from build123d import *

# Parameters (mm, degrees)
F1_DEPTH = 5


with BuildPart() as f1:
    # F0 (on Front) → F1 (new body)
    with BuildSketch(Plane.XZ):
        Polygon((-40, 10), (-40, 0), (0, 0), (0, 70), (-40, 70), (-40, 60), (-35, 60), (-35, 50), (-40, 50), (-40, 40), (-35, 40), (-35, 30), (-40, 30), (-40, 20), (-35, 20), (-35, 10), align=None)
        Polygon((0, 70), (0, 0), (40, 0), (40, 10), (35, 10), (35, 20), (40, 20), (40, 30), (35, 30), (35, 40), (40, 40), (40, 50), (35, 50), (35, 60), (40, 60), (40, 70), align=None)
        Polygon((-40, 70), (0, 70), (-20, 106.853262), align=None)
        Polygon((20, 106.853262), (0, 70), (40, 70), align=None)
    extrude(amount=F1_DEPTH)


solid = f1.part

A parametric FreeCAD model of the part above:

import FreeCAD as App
import Part
import Sketcher

V = App.Vector
Q = App.Units.Quantity

doc = App.newDocument("Part")
body = doc.addObject("PartDesign::Body", "Body")

# Sketch on XZ plane
sketch1 = body.newObject("Sketcher::SketchObject", "Sketch")
sketch1.AttachmentSupport = (doc.getObject("XZ_Plane"), [""])
sketch1.MapMode = "FlatFace"
sketch1.addGeometry([
    Part.LineSegment(V(-40, 10, 0), V(-40, 0, 0)),  # 0
    Part.LineSegment(V(-40, 0, 0), V(40, 0, 0)),  # 1
    Part.LineSegment(V(40, 0, 0), V(40, 10, 0)),  # 2
    Part.LineSegment(V(40, 10, 0), V(35, 10, 0)),  # 3
    Part.LineSegment(V(35, 10, 0), V(35, 20, 0)),  # 4
    Part.LineSegment(V(35, 20, 0), V(40, 20, 0)),  # 5
    Part.LineSegment(V(40, 20, 0), V(40, 30, 0)),  # 6
    Part.LineSegment(V(40, 30, 0), V(35, 30, 0)),  # 7
    Part.LineSegment(V(35, 30, 0), V(35, 40, 0)),  # 8
    Part.LineSegment(V(35, 40, 0), V(40, 40, 0)),  # 9
    Part.LineSegment(V(40, 40, 0), V(40, 50, 0)),  # 10
    Part.LineSegment(V(40, 50, 0), V(35, 50, 0)),  # 11
    Part.LineSegment(V(35, 50, 0), V(35, 60, 0)),  # 12
    Part.LineSegment(V(35, 60, 0), V(40, 60, 0)),  # 13
    Part.LineSegment(V(40, 60, 0), V(40, 70, 0)),  # 14
    Part.LineSegment(V(40, 70, 0), V(20, 107, 0)),  # 15
    Part.LineSegment(V(20, 107, 0), V(0, 70, 0)),  # 16
    Part.LineSegment(V(0, 70, 0), V(-20, 107, 0)),  # 17
    Part.LineSegment(V(-20, 107, 0), V(-40, 70, 0)),  # 18
    Part.LineSegment(V(-40, 70, 0), V(-40, 60, 0)),  # 19
    Part.LineSegment(V(-40, 60, 0), V(-35, 60, 0)),  # 20
    Part.LineSegment(V(-35, 60, 0), V(-35, 50, 0)),  # 21
    Part.LineSegment(V(-35, 50, 0), V(-40, 50, 0)),  # 22
    Part.LineSegment(V(-40, 50, 0), V(-40, 40, 0)),  # 23
    Part.LineSegment(V(-40, 40, 0), V(-35, 40, 0)),  # 24
    Part.LineSegment(V(-35, 40, 0), V(-35, 30, 0)),  # 25
    Part.LineSegment(V(-35, 30, 0), V(-40, 30, 0)),  # 26
    Part.LineSegment(V(-40, 30, 0), V(-40, 20, 0)),  # 27
    Part.LineSegment(V(-40, 20, 0), V(-35, 20, 0)),  # 28
    Part.LineSegment(V(-35, 20, 0), V(-35, 10, 0)),  # 29
    Part.LineSegment(V(-35, 10, 0), V(-40, 10, 0)),  # 30
], False)
sketch1.addConstraint([
    Sketcher.Constraint("Coincident", 0, 2, 1, 1),
    Sketcher.Constraint("Coincident", 1, 2, 2, 1),
    Sketcher.Constraint("Coincident", 2, 2, 3, 1),
    Sketcher.Constraint("Coincident", 3, 2, 4, 1),
    Sketcher.Constraint("Coincident", 4, 2, 5, 1),
    Sketcher.Constraint("Coincident", 5, 2, 6, 1),
    Sketcher.Constraint("Coincident", 6, 2, 7, 1),
    Sketcher.Constraint("Coincident", 7, 2, 8, 1),
    Sketcher.Constraint("Coincident", 8, 2, 9, 1),
    Sketcher.Constraint("Coincident", 9, 2, 10, 1),
    Sketcher.Constraint("Coincident", 10, 2, 11, 1),
    Sketcher.Constraint("Coincident", 11, 2, 12, 1),
    Sketcher.Constraint("Coincident", 12, 2, 13, 1),
    Sketcher.Constraint("Coincident", 13, 2, 14, 1),
    Sketcher.Constraint("Coincident", 14, 2, 15, 1),
    Sketcher.Constraint("Coincident", 15, 2, 16, 1),
    Sketcher.Constraint("Coincident", 16, 2, 17, 1),
    Sketcher.Constraint("Coincident", 17, 2, 18, 1),
    Sketcher.Constraint("Coincident", 18, 2, 19, 1),
    Sketcher.Constraint("Coincident", 19, 2, 20, 1),
    Sketcher.Constraint("Coincident", 20, 2, 21, 1),
    Sketcher.Constraint("Coincident", 21, 2, 22, 1),
    Sketcher.Constraint("Coincident", 22, 2, 23, 1),
    Sketcher.Constraint("Coincident", 23, 2, 24, 1),
    Sketcher.Constraint("Coincident", 24, 2, 25, 1),
    Sketcher.Constraint("Coincident", 25, 2, 26, 1),
    Sketcher.Constraint("Coincident", 26, 2, 27, 1),
    Sketcher.Constraint("Coincident", 27, 2, 28, 1),
    Sketcher.Constraint("Coincident", 28, 2, 29, 1),
    Sketcher.Constraint("Coincident", 29, 2, 30, 1),
    Sketcher.Constraint("Coincident", 30, 2, 0, 1),
    Sketcher.Constraint("Vertical", 0),
    Sketcher.Constraint("Horizontal", 1),
    Sketcher.Constraint("Vertical", 2),
    Sketcher.Constraint("Horizontal", 3),
    Sketcher.Constraint("Vertical", 4),
    Sketcher.Constraint("Horizontal", 5),
    Sketcher.Constraint("Vertical", 6),
    Sketcher.Constraint("Horizontal", 7),
    Sketcher.Constraint("Vertical", 8),
    Sketcher.Constraint("Horizontal", 9),
    Sketcher.Constraint("Vertical", 10),
    Sketcher.Constraint("Horizontal", 11),
    Sketcher.Constraint("Vertical", 12),
    Sketcher.Constraint("Horizontal", 13),
    Sketcher.Constraint("Vertical", 14),
    Sketcher.Constraint("Vertical", 19),
    Sketcher.Constraint("Horizontal", 20),
    Sketcher.Constraint("Vertical", 21),
    Sketcher.Constraint("Horizontal", 22),
    Sketcher.Constraint("Vertical", 23),
    Sketcher.Constraint("Horizontal", 24),
    Sketcher.Constraint("Vertical", 25),
    Sketcher.Constraint("Horizontal", 26),
    Sketcher.Constraint("Vertical", 27),
    Sketcher.Constraint("Horizontal", 28),
    Sketcher.Constraint("Vertical", 29),
    Sketcher.Constraint("Horizontal", 30),
    Sketcher.Constraint("Symmetric", 0, 2, 1, 2, -1, 1),
    Sketcher.Constraint("Symmetric", 15, 2, 17, 2, -2),
    Sketcher.Constraint("Symmetric", 14, 2, 18, 2, -2),
    Sketcher.Constraint("Symmetric", 12, 2, 20, 2, -2),
    Sketcher.Constraint("Symmetric", 10, 2, 22, 2, -2),
    Sketcher.Constraint("Symmetric", 8, 2, 24, 2, -2),
    Sketcher.Constraint("Symmetric", 6, 2, 26, 2, -2),
    Sketcher.Constraint("Symmetric", 4, 2, 28, 2, -2),
    Sketcher.Constraint("PointOnObject", 16, 2, -2),
    Sketcher.Constraint("Parallel", 15, 17),
    Sketcher.Constraint("Horizontal", 14, 2, 16, 2),
    Sketcher.Constraint("Horizontal", 3, 2, 29, 2),
    Sketcher.Constraint("Vertical", 2, 2, 5, 2),
    Sketcher.Constraint("Vertical", 4, 2, 7, 2),
    Sketcher.Constraint("Vertical", 6, 2, 9, 2),
    Sketcher.Constraint("Vertical", 8, 2, 11, 2),
    Sketcher.Constraint("Vertical", 10, 2, 13, 2),
    Sketcher.Constraint("Equal", 2, 4),
    Sketcher.Constraint("Equal", 4, 6),
    Sketcher.Constraint("Equal", 6, 8),
    Sketcher.Constraint("Equal", 8, 10),
    Sketcher.Constraint("Equal", 10, 12),
    Sketcher.Constraint("Equal", 12, 14),
    Sketcher.Constraint("DistanceX", 1, 1, 1, 2, Q("80 mm")),
    Sketcher.Constraint("DistanceX", 3, 2, 3, 1, Q("5 mm")),
    Sketcher.Constraint("DistanceY", 0, 2, 0, 1, Q("10 mm")),
    Sketcher.Constraint("DistanceY", -1, 1, 15, 2, Q("106.853262 mm")),
])
pad1 = body.newObject("PartDesign::Pad", "Pad")
pad1.Profile = sketch1
pad1.Length = 5

doc.recompute()
